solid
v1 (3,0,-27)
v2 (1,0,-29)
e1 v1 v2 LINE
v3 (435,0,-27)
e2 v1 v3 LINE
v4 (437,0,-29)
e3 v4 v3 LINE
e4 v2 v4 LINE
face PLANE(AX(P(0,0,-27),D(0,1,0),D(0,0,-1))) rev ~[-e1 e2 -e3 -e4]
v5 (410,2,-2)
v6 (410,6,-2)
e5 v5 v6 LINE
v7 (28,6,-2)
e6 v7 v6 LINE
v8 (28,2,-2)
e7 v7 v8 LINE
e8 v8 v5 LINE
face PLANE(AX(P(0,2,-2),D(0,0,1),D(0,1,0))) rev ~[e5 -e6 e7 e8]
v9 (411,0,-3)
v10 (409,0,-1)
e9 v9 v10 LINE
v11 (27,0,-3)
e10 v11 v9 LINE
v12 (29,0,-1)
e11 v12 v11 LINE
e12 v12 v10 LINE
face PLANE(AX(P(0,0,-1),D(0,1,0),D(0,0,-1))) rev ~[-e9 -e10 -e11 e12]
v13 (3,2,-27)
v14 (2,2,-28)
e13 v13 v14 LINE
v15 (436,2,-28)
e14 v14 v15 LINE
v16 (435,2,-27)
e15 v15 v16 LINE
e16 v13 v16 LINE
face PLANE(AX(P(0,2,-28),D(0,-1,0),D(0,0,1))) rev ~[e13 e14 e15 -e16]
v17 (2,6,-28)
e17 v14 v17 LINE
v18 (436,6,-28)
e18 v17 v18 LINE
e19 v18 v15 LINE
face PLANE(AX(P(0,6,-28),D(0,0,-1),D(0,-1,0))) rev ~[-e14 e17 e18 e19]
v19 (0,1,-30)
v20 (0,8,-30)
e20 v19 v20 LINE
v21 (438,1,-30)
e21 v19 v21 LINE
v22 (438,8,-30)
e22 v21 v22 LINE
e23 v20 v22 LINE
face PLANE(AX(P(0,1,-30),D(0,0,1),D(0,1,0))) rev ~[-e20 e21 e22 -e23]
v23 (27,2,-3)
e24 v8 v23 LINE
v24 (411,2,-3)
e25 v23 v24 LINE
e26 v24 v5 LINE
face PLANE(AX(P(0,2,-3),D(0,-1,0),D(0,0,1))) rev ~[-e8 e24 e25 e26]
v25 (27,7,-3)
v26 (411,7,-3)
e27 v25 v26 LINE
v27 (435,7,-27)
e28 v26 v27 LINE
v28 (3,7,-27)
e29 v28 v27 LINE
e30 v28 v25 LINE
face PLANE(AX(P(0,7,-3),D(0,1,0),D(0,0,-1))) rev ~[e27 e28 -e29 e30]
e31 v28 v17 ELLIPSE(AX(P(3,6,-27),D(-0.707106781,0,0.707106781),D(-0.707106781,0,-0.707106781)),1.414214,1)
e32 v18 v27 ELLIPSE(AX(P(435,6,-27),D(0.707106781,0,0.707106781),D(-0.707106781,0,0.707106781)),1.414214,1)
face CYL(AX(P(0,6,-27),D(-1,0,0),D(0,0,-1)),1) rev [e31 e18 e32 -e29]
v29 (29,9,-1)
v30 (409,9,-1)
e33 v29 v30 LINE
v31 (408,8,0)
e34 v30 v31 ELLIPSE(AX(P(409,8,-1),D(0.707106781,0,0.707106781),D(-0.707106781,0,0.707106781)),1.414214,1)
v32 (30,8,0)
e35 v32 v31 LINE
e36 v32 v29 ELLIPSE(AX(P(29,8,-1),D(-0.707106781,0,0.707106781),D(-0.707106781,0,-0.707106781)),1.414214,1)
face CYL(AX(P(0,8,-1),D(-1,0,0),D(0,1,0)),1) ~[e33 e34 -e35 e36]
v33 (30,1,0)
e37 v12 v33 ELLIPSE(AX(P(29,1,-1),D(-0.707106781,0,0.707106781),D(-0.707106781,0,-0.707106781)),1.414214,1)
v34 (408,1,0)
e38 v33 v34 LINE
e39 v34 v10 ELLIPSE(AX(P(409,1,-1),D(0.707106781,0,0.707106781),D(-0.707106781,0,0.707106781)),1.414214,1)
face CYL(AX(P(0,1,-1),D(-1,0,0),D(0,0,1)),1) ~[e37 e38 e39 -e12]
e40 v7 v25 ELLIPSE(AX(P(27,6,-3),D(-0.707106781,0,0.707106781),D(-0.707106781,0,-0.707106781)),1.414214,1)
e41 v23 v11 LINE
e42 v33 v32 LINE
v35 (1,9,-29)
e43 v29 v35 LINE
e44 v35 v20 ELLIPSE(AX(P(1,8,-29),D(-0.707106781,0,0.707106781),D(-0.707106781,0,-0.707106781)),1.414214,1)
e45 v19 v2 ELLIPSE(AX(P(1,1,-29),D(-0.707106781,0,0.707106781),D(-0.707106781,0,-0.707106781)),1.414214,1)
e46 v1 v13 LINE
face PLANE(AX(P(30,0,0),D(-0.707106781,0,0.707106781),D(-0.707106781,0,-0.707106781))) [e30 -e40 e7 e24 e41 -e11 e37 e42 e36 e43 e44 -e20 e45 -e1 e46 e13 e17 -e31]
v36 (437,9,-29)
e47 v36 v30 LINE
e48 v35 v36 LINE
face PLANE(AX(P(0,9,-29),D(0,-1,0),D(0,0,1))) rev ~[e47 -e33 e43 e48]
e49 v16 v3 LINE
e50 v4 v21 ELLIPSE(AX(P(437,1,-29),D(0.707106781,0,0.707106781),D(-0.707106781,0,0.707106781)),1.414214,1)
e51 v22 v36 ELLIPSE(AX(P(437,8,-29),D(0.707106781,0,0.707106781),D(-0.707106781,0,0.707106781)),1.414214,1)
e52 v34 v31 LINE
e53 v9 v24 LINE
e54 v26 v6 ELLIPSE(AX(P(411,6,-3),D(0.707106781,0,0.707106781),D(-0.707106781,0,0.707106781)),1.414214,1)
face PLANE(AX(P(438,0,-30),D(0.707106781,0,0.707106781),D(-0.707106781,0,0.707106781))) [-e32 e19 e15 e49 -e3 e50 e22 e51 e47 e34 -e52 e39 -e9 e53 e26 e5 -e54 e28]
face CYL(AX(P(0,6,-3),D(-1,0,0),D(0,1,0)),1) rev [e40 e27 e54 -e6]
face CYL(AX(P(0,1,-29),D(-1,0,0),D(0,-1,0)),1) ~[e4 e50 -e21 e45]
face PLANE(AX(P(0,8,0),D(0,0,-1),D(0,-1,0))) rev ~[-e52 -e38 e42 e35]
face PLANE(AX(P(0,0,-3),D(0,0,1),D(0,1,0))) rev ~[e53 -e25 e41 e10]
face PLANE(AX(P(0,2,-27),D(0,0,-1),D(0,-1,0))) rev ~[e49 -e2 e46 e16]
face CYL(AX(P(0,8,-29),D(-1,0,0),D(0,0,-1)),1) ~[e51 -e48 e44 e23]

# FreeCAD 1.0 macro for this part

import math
import FreeCAD as App
import Part
import Sketcher
Q = App.Units.Quantity


def add_polygon(sketch, points):
    """Adds a closed chain of lines whose ends are joined by coincident constraints."""
    first, n = sketch.GeometryCount, len(points)
    for a, b in zip(points, points[1:] + points[:1]):
        sketch.addGeometry(Part.LineSegment(App.Vector(*a, 0), App.Vector(*b, 0)), False)
    for i in range(n):
        sketch.addConstraint(Sketcher.Constraint("Coincident", first + i, 2, first + (i + 1) % n, 1))

doc = App.newDocument("Part")
body = doc.addObject("PartDesign::Body", "Body")

# Sketch on YZ plane
sketch1 = body.newObject("Sketcher::SketchObject", "Sketch")
sketch1.AttachmentSupport = (doc.getObject("YZ_Plane"), [""])
sketch1.MapMode = "FlatFace"
sketch1.addGeometry([
    Part.ArcOfCircle(Part.Circle(App.Vector(1, -1, 0), App.Vector(0, 0, 1), 1), math.radians(90), math.radians(180)),  # 0
    Part.LineSegment(App.Vector(0, -1, 0), App.Vector(0, -3, 0)),  # 1
    Part.LineSegment(App.Vector(0, -3, 0), App.Vector(2, -3, 0)),  # 2
    Part.LineSegment(App.Vector(2, -3, 0), App.Vector(2, -2, 0)),  # 3
    Part.LineSegment(App.Vector(2, -2, 0), App.Vector(6, -2, 0)),  # 4
    Part.ArcOfCircle(Part.Circle(App.Vector(6, -3, 0), App.Vector(0, 0, 1), 1), math.radians(0), math.radians(90)),  # 5
    Part.LineSegment(App.Vector(7, -3, 0), App.Vector(7, -27, 0)),  # 6
    Part.ArcOfCircle(Part.Circle(App.Vector(6, -27, 0), App.Vector(0, 0, 1), 1), math.radians(-90), math.radians(0)),  # 7
    Part.LineSegment(App.Vector(6, -28, 0), App.Vector(2, -28, 0)),  # 8
    Part.LineSegment(App.Vector(2, -28, 0), App.Vector(2, -27, 0)),  # 9
    Part.LineSegment(App.Vector(2, -27, 0), App.Vector(0, -27, 0)),  # 10
    Part.LineSegment(App.Vector(0, -27, 0), App.Vector(0, -29, 0)),  # 11
    Part.ArcOfCircle(Part.Circle(App.Vector(1, -29, 0), App.Vector(0, 0, 1), 1), math.radians(180), math.radians(270)),  # 12
    Part.LineSegment(App.Vector(1, -30, 0), App.Vector(8, -30, 0)),  # 13
    Part.ArcOfCircle(Part.Circle(App.Vector(8, -29, 0), App.Vector(0, 0, 1), 1), math.radians(-90), math.radians(0)),  # 14
    Part.LineSegment(App.Vector(9, -29, 0), App.Vector(9, -1, 0)),  # 15
    Part.ArcOfCircle(Part.Circle(App.Vector(8, -1, 0), App.Vector(0, 0, 1), 1), math.radians(0), math.radians(90)),  # 16
    Part.LineSegment(App.Vector(8, 0, 0), App.Vector(1, 0, 0)),  # 17
], False)
sketch1.addConstraint([
    Sketcher.Constraint("Tangent", 0, 2, 1, 1),
    Sketcher.Constraint("Coincident", 1, 2, 2, 1),
    Sketcher.Constraint("Coincident", 2, 2, 3, 1),
    Sketcher.Constraint("Coincident", 3, 2, 4, 1),
    Sketcher.Constraint("Tangent", 4, 2, 5, 2),
    Sketcher.Constraint("Tangent", 5, 1, 6, 1),
    Sketcher.Constraint("Tangent", 6, 2, 7, 2),
    Sketcher.Constraint("Tangent", 7, 1, 8, 1),
    Sketcher.Constraint("Coincident", 8, 2, 9, 1),
    Sketcher.Constraint("Coincident", 9, 2, 10, 1),
    Sketcher.Constraint("Coincident", 10, 2, 11, 1),
    Sketcher.Constraint("Tangent", 11, 2, 12, 1),
    Sketcher.Constraint("Tangent", 12, 2, 13, 1),
    Sketcher.Constraint("Tangent", 13, 2, 14, 1),
    Sketcher.Constraint("Tangent", 14, 2, 15, 1),
    Sketcher.Constraint("Tangent", 15, 2, 16, 1),
    Sketcher.Constraint("Tangent", 16, 2, 17, 1),
    Sketcher.Constraint("Tangent", 17, 2, 0, 1),
    Sketcher.Constraint("Vertical", 1),
    Sketcher.Constraint("Horizontal", 2),
    Sketcher.Constraint("Vertical", 3),
    Sketcher.Constraint("Horizontal", 4),
    Sketcher.Constraint("Vertical", 6),
    Sketcher.Constraint("Horizontal", 8),
    Sketcher.Constraint("Vertical", 9),
    Sketcher.Constraint("Horizontal", 10),
    Sketcher.Constraint("Vertical", 11),
    Sketcher.Constraint("Horizontal", 13),
    Sketcher.Constraint("Vertical", 15),
    Sketcher.Constraint("Horizontal", 17),
    Sketcher.Constraint("Equal", 0, 5),
    Sketcher.Constraint("Equal", 5, 7),
    Sketcher.Constraint("Equal", 7, 12),
    Sketcher.Constraint("Equal", 12, 14),
    Sketcher.Constraint("Equal", 14, 16),
    Sketcher.Constraint("PointOnObject", 0, 2, -2),
    Sketcher.Constraint("PointOnObject", 10, 2, -2),
    Sketcher.Constraint("PointOnObject", 16, 2, -1),
    Sketcher.Constraint("Horizontal", 5, 3, 1, 2),
    Sketcher.Constraint("Horizontal", 6, 2, 9, 2),
    Sketcher.Constraint("Vertical", 3, 2, 8, 2),
    Sketcher.Constraint("Equal", 10, 1),
    Sketcher.Constraint("Equal", 1, 11),
    Sketcher.Constraint("Radius", 0, Q("1 mm")),
    Sketcher.Constraint("DistanceX", 2, 1, 2, 2, Q("2 mm")),
    Sketcher.Constraint("DistanceX", 4, 1, 4, 2, Q("4 mm")),
    Sketcher.Constraint("DistanceX", 13, 1, 13, 2, Q("7 mm")),
    Sketcher.Constraint("DistanceY", 6, 2, 6, 1, Q("24 mm")),
])
pad1 = body.newObject("PartDesign::Pad", "Pad")
pad1.Profile = sketch1
pad1.Length = 438

# Sketch on XZ plane
sketch2 = body.newObject("Sketcher::SketchObject", "Sketch001")
sketch2.AttachmentSupport = (doc.getObject("XZ_Plane"), [""])
sketch2.MapMode = "FlatFace"
add_polygon(sketch2, [(0, -30), (0, 0), (30, 0)])  # lines 0-2
add_polygon(sketch2, [(438, -30), (408, 0), (438, 0)])  # lines 3-5
sketch2.addConstraint([
    Sketcher.Constraint("Vertical", 0),
    Sketcher.Constraint("Horizontal", 1),
    Sketcher.Constraint("Horizontal", 4),
    Sketcher.Constraint("Vertical", 5),
    Sketcher.Constraint("Coincident", 0, 2, -1, 1),
    Sketcher.Constraint("PointOnObject", 3, 2, -1),
    Sketcher.Constraint("Perpendicular", 2, 3),
    Sketcher.Constraint("Horizontal", 2, 2, 5, 2),
    Sketcher.Constraint("Equal", 1, 4),
    Sketcher.Constraint("DistanceX", 1, 1, 1, 2, Q("30 mm")),
    Sketcher.Constraint("DistanceX", -1, 1, 3, 2, Q("408 mm")),
])
pocket1 = body.newObject("PartDesign::Pocket", "Pocket")
pocket1.Profile = sketch2
pocket1.Length = 10

doc.recompute()
